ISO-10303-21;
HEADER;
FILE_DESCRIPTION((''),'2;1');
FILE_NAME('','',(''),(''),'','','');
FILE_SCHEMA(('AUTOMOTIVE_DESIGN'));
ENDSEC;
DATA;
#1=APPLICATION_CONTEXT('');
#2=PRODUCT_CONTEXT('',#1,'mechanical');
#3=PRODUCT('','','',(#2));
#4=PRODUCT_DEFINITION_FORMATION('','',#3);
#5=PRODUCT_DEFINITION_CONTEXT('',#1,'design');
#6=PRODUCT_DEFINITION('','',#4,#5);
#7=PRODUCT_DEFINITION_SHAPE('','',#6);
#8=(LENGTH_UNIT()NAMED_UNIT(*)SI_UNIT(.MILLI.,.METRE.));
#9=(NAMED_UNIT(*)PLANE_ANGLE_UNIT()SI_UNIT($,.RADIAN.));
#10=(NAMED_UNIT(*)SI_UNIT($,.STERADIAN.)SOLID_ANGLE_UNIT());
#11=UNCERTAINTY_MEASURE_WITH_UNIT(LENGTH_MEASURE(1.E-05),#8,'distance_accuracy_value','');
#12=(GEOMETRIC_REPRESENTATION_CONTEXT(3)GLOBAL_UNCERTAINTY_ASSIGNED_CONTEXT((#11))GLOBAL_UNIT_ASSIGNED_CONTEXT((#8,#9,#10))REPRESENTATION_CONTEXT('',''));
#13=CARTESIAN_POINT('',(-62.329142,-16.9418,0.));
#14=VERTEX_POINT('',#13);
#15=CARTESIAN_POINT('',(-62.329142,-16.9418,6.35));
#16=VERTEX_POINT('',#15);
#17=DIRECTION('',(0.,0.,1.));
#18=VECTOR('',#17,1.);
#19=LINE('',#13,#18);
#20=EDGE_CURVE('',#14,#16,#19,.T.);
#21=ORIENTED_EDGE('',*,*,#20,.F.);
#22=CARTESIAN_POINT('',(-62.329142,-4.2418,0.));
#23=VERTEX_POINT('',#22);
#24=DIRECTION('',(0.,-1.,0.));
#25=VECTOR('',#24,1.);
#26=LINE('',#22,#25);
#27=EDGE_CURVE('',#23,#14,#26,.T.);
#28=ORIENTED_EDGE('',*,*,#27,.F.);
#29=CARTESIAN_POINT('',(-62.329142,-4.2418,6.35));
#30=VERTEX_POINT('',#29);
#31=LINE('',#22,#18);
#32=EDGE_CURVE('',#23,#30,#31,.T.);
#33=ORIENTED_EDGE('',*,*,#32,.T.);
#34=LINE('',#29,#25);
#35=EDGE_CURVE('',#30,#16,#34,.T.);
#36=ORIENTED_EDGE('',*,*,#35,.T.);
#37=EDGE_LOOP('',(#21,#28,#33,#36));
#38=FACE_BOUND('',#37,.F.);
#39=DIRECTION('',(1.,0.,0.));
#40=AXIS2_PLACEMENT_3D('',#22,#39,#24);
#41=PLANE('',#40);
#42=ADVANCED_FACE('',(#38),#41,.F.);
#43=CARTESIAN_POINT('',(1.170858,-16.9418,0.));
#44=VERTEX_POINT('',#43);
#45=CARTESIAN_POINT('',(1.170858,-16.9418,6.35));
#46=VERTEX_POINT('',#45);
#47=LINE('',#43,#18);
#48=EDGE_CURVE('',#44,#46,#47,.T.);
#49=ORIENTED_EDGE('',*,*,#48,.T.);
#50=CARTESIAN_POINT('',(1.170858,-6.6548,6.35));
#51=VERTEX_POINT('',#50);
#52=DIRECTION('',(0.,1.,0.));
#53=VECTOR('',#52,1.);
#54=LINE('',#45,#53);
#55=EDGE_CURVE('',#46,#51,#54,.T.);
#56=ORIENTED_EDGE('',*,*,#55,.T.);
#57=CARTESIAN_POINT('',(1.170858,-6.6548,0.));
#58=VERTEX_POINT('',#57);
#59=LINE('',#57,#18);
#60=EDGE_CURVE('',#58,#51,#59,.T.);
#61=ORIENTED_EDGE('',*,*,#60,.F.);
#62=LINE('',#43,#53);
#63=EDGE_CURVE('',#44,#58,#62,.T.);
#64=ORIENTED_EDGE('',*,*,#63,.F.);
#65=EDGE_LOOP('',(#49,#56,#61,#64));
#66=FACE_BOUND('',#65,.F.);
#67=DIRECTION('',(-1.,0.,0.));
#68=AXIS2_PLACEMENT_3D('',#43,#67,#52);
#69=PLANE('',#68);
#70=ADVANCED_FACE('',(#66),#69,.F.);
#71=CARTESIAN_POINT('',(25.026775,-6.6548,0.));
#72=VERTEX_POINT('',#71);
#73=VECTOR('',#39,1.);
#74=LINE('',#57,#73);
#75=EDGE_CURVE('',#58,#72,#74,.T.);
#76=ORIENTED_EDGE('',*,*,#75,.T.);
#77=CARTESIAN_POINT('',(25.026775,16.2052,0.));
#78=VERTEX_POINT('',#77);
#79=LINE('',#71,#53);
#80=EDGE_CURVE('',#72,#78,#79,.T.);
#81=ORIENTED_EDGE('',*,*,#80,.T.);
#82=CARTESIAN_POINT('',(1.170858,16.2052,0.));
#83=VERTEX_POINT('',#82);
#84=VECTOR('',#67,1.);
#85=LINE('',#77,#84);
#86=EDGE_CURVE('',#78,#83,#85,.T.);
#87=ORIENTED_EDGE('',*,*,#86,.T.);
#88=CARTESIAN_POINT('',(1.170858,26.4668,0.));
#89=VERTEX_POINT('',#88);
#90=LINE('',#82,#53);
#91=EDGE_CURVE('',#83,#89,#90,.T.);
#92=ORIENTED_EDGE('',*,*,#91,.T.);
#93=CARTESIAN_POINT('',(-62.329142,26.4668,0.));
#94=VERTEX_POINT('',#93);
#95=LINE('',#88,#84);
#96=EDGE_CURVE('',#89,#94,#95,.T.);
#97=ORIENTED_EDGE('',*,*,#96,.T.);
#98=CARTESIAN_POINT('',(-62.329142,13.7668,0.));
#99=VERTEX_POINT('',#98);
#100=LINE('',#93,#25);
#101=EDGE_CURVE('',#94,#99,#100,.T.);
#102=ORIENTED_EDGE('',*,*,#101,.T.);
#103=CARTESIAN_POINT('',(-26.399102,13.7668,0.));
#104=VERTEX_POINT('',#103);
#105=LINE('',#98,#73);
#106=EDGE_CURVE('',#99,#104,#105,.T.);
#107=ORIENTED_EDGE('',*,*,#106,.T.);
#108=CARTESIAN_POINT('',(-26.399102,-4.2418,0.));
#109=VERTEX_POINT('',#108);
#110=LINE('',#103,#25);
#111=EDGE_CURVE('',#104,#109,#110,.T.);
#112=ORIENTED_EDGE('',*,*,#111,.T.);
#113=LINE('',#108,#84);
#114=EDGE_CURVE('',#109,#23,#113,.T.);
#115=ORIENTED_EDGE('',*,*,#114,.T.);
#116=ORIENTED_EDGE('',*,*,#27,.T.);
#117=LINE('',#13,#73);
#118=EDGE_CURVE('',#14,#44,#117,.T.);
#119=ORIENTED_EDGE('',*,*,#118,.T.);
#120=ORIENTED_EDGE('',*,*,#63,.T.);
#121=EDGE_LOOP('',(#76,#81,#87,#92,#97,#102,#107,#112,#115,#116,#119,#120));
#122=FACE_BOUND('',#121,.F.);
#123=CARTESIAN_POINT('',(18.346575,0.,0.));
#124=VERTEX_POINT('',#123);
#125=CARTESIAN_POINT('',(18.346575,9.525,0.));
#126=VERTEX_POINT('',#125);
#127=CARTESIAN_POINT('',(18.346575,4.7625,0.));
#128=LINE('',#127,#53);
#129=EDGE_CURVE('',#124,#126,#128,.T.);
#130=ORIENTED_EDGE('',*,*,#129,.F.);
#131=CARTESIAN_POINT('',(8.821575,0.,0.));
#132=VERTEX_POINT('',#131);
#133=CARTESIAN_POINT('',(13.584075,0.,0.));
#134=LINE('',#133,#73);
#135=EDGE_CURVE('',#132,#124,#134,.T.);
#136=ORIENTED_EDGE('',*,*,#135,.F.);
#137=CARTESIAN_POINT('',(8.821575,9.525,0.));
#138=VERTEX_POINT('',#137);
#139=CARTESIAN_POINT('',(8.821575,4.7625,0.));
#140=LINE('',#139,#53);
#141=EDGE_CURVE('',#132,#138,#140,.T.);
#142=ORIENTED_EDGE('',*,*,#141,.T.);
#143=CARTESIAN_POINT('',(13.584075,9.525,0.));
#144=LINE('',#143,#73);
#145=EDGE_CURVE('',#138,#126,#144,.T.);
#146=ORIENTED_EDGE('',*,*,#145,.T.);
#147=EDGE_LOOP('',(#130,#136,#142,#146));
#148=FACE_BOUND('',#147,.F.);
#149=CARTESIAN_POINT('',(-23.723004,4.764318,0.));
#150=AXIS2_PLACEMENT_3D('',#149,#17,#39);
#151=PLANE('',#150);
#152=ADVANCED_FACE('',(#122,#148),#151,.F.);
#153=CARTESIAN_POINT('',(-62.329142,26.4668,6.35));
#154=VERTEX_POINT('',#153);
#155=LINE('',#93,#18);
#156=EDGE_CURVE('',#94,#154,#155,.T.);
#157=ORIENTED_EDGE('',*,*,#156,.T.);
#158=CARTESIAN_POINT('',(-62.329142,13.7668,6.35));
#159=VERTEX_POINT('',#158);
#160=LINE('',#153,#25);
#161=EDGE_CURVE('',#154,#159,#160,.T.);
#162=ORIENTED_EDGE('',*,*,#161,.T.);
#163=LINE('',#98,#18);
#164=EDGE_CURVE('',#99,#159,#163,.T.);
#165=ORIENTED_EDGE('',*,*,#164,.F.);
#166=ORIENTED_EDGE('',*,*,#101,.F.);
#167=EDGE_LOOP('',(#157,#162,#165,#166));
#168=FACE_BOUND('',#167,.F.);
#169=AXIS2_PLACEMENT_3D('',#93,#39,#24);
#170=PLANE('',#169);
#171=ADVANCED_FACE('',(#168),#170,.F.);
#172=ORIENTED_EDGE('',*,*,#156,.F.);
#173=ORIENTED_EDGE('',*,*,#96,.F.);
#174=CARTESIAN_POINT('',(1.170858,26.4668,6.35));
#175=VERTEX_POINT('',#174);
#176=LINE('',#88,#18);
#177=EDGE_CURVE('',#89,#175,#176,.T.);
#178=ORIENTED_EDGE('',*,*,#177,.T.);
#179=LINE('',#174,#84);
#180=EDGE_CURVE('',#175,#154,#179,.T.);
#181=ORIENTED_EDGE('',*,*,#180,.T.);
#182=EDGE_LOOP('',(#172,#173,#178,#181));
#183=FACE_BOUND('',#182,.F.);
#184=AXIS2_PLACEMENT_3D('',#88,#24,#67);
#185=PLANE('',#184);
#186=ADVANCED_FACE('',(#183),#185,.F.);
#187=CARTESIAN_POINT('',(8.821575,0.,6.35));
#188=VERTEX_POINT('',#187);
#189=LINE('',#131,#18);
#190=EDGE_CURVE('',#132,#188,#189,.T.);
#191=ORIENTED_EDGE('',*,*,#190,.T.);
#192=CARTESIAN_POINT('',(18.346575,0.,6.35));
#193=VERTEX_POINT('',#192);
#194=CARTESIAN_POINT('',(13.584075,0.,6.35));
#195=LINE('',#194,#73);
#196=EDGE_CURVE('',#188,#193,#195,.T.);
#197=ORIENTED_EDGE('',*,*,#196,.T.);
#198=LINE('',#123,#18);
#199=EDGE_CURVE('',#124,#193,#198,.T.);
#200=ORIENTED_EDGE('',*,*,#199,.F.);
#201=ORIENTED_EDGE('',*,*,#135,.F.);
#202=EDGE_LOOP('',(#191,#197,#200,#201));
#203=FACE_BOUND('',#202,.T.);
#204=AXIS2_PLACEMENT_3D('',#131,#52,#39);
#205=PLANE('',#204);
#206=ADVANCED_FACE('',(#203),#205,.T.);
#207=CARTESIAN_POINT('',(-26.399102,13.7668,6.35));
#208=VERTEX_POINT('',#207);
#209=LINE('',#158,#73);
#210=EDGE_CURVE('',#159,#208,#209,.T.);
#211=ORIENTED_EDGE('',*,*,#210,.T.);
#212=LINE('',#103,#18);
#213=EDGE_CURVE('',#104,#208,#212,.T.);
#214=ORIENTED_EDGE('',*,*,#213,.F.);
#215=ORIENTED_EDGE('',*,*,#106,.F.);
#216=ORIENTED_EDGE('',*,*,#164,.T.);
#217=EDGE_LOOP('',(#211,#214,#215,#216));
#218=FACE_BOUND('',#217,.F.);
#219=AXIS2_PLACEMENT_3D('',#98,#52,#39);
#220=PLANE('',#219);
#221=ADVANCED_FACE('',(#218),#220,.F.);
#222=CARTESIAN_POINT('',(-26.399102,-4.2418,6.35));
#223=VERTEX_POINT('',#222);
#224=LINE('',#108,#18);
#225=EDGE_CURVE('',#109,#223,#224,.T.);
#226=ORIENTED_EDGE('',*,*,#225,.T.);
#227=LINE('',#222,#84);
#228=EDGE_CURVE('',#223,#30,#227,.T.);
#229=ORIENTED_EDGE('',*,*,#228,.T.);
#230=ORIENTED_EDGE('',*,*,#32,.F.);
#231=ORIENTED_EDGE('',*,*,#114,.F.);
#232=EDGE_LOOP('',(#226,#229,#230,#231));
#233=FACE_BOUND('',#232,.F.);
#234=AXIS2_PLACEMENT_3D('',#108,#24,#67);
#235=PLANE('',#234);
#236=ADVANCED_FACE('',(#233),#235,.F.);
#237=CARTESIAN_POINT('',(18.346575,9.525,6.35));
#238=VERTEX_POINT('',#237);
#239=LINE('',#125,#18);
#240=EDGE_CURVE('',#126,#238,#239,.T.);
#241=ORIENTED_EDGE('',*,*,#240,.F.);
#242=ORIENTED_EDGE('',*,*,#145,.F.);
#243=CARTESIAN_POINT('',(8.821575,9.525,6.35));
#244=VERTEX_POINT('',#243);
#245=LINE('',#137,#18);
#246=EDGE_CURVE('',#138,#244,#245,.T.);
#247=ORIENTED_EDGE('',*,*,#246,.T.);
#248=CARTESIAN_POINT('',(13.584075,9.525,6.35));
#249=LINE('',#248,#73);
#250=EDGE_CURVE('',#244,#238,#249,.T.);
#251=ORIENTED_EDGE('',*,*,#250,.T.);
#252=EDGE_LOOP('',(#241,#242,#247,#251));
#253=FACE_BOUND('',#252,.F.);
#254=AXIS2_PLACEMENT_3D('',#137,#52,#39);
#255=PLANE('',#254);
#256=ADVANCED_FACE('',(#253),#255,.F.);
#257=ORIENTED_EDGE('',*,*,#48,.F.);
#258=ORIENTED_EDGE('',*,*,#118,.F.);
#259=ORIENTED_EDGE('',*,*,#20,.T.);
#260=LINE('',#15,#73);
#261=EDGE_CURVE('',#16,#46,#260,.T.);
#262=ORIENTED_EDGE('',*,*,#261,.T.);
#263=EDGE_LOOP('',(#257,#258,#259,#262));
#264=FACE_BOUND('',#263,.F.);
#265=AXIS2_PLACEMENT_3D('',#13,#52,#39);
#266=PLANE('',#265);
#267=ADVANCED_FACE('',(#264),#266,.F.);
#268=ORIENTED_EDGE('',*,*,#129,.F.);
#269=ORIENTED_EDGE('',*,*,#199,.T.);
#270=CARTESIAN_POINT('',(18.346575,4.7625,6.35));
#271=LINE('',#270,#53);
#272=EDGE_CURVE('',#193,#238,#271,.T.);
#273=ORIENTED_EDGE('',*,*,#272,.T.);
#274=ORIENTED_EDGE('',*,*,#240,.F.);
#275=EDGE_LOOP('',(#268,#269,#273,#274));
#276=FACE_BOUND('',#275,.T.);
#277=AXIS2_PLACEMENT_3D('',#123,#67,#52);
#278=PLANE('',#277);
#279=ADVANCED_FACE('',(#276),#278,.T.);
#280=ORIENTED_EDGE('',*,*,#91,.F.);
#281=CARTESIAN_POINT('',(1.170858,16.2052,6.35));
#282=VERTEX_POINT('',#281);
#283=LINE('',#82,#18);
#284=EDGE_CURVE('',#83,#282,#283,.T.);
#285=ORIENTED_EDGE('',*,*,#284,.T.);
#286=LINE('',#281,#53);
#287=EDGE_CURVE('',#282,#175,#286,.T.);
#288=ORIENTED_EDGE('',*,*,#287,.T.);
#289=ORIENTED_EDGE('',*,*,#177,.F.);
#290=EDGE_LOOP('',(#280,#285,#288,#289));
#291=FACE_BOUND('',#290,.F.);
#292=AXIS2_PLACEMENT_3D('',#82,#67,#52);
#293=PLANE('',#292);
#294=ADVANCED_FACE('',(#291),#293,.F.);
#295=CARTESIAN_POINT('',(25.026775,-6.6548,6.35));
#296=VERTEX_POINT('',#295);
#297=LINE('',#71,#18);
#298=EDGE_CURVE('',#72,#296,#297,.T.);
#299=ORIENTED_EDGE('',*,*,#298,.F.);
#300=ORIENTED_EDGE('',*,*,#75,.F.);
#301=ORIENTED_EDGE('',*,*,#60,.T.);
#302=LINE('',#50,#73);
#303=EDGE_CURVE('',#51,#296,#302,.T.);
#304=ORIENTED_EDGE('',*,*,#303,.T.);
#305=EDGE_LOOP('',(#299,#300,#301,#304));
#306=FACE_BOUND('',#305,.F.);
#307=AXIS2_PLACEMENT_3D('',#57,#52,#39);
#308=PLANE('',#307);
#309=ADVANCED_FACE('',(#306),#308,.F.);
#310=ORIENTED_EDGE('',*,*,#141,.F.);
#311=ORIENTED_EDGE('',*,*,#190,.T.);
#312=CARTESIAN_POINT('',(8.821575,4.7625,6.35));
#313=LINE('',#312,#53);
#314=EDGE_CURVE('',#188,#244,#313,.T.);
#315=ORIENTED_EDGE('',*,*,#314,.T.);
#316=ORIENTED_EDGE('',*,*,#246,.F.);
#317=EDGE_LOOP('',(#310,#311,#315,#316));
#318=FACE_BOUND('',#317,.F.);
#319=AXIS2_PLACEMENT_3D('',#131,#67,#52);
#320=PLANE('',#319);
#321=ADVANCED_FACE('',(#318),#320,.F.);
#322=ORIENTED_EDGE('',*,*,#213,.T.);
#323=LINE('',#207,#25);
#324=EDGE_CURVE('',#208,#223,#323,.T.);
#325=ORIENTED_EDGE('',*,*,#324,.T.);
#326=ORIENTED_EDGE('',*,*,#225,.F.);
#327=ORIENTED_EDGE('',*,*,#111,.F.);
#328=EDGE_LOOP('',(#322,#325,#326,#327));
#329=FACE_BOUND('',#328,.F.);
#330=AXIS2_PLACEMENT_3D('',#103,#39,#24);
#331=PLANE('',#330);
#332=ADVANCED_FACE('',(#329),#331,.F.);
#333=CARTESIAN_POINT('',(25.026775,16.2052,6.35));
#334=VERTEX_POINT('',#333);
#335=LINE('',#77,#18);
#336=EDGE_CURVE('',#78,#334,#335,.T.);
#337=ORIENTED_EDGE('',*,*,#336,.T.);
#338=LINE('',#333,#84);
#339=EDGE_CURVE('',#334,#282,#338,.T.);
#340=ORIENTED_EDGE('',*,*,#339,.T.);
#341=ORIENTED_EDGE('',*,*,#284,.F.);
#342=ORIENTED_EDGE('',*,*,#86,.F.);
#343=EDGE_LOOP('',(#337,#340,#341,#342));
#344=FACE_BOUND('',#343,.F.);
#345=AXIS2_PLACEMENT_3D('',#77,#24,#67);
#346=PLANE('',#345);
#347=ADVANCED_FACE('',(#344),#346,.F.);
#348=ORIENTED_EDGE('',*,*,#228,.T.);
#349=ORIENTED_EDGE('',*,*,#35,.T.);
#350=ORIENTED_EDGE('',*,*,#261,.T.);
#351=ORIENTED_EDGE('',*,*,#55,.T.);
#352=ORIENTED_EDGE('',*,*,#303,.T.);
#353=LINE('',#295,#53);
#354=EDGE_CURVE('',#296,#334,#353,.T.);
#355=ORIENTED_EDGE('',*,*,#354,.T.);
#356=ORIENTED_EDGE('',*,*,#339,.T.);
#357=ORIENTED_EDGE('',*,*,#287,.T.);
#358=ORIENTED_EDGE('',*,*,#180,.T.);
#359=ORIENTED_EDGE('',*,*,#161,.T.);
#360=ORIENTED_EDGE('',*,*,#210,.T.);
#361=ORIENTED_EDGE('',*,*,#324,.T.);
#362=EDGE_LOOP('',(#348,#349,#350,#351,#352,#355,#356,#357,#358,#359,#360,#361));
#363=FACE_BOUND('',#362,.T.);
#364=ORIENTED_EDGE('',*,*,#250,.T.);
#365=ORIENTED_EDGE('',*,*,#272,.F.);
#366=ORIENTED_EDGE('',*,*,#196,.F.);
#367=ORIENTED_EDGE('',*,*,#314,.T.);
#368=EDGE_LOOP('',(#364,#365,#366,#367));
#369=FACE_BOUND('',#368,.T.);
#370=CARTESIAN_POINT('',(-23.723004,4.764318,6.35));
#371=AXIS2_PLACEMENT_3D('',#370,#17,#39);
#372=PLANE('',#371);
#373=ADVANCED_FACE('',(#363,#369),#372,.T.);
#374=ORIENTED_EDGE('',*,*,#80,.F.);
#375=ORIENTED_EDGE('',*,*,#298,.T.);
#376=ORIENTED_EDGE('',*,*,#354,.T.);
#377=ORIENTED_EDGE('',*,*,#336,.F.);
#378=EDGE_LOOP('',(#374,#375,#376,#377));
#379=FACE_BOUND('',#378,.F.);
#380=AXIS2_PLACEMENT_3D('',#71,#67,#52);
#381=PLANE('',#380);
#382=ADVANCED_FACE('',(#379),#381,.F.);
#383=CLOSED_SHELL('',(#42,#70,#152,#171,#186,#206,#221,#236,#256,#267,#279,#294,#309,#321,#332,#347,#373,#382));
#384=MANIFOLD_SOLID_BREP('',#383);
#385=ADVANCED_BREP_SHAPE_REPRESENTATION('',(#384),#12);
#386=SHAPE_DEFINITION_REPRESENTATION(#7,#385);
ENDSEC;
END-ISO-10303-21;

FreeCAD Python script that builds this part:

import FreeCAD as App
import Part
import Sketcher
Q = App.Units.Quantity


def add_polygon(sketch, points):
    """Adds a closed chain of lines whose ends are joined by coincident constraints."""
    first, n = sketch.GeometryCount, len(points)
    for a, b in zip(points, points[1:] + points[:1]):
        sketch.addGeometry(Part.LineSegment(App.Vector(*a, 0), App.Vector(*b, 0)), False)
    for i in range(n):
        sketch.addConstraint(Sketcher.Constraint("Coincident", first + i, 2, first + (i + 1) % n, 1))

doc = App.newDocument("Part")
body = doc.addObject("PartDesign::Body", "Body")

# Sketch on XY plane
sketch1 = body.newObject("Sketcher::SketchObject", "Sketch")
sketch1.AttachmentSupport = (doc.getObject("XY_Plane"), [""])
sketch1.MapMode = "FlatFace"
add_polygon(sketch1, [(-62, 26), (-62, 14), (-26, 14), (-26, -4), (-62, -4), (-62, -17), (1, -17), (1, -7), (25, -7), (25, 16), (1, 16), (1, 26)])  # lines 0-11
add_polygon(sketch1, [(18, 0), (9, 0), (9, 10), (18, 10)])  # lines 12-15
sketch1.addConstraint([
    Sketcher.Constraint("Vertical", 0),
    Sketcher.Constraint("Horizontal", 1),
    Sketcher.Constraint("Vertical", 2),
    Sketcher.Constraint("Horizontal", 3),
    Sketcher.Constraint("Vertical", 4),
    Sketcher.Constraint("Horizontal", 5),
    Sketcher.Constraint("Vertical", 6),
    Sketcher.Constraint("Horizontal", 7),
    Sketcher.Constraint("Vertical", 8),
    Sketcher.Constraint("Horizontal", 9),
    Sketcher.Constraint("Vertical", 10),
    Sketcher.Constraint("Horizontal", 11),
    Sketcher.Constraint("Horizontal", 12),
    Sketcher.Constraint("Vertical", 13),
    Sketcher.Constraint("Horizontal", 14),
    Sketcher.Constraint("Vertical", 15),
    Sketcher.Constraint("PointOnObject", 12, 2, -1),
    Sketcher.Constraint("Vertical", 0, 2, 3, 2),
    Sketcher.Constraint("Vertical", 6, 2, 9, 2),
    Sketcher.Constraint("Equal", 0, 4),
    Sketcher.Constraint("Equal", 14, 13),
    Sketcher.Constraint("DistanceX", 5, 1, 5, 2, Q("2.5 in")),
    Sketcher.Constraint("DistanceY", 0, 2, 0, 1, Q("0.5 in")),
    Sketcher.Constraint("DistanceY", 8, 1, 8, 2, Q("0.9 in")),
    Sketcher.Constraint("DistanceX", 12, 2, 12, 1, Q("0.375 in")),
    Sketcher.Constraint("DistanceY", 2, 2, 2, 1, Q("0.709 in")),
    Sketcher.Constraint("DistanceY", 6, 1, 6, 2, Q("0.405 in")),
    Sketcher.Constraint("DistanceY", -1, 1, 0, 2, Q("0.542 in")),
    Sketcher.Constraint("DistanceX", 12, 2, 7, 2, Q("0.638 in")),
    Sketcher.Constraint("DistanceX", 1, 1, 1, 2, 35.93004),
    Sketcher.Constraint("DistanceX", 1, 2, -1, 1, 26.399102),
    Sketcher.Constraint("DistanceX", 7, 1, 7, 2, 23.855917),
])
pad1 = body.newObject("PartDesign::Pad", "Pad")
pad1.Profile = sketch1
pad1.Length = Q("0.25 in")

doc.recompute()
